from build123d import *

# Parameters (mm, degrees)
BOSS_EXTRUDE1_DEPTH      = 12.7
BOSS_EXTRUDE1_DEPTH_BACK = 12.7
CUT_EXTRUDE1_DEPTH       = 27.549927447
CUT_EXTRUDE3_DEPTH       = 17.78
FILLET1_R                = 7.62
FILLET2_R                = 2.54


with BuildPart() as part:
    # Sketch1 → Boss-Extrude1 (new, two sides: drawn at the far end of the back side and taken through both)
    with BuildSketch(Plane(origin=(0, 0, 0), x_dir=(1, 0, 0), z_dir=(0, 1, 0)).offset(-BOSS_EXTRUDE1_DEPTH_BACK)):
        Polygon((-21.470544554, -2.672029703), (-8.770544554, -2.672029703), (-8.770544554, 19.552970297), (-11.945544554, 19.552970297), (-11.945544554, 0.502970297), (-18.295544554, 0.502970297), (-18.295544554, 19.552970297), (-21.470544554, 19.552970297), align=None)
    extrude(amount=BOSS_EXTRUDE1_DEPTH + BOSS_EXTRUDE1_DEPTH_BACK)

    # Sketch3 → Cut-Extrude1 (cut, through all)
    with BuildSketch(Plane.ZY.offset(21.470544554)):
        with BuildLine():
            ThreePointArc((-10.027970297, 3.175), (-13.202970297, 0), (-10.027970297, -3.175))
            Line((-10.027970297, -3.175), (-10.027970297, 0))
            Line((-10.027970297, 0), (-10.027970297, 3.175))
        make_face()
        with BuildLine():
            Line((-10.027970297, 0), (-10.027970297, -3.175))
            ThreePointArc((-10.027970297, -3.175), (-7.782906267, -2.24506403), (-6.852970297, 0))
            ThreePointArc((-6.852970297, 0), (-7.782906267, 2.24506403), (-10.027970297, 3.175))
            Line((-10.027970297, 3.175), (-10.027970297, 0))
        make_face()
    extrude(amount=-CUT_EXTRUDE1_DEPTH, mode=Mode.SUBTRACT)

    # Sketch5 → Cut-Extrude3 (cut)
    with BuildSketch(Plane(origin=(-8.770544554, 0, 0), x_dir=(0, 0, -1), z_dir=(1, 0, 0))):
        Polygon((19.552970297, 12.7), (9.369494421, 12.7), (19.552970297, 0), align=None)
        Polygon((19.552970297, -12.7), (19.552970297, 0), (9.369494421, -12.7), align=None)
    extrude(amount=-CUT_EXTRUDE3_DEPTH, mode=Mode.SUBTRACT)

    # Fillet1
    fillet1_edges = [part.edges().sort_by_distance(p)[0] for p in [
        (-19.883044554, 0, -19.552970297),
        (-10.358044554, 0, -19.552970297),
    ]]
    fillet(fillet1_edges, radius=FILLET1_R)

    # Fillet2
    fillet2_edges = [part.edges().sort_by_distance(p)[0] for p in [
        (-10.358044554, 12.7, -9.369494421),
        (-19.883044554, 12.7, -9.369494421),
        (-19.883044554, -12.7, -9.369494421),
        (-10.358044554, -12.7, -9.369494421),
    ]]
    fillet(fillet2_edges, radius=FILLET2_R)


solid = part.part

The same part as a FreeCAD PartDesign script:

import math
import FreeCAD as App
import Part
import Sketcher
from FreeCAD import Vector
Q = App.Units.Quantity


def edges_at(feature, points):
    """Names of the edges that pass closest to the given points."""
    edges = feature.Shape.Edges
    near = lambda p: min(range(len(edges)), key=lambda i: edges[i].distToShape(Part.Vertex(*p))[0])
    return sorted({f"Edge{near(p) + 1}" for p in points})


def add_polygon(sketch, points):
    """Adds a closed chain of lines whose ends are joined by coincident constraints."""
    first, n = sketch.GeometryCount, len(points)
    for a, b in zip(points, points[1:] + points[:1]):
        sketch.addGeometry(Part.LineSegment(App.Vector(*a, 0), App.Vector(*b, 0)), False)
    for i in range(n):
        sketch.addConstraint(Sketcher.Constraint("Coincident", first + i, 2, first + (i + 1) % n, 1))

doc = App.newDocument("Part")
body = doc.addObject("PartDesign::Body", "Body")

# Sketch on XZ plane
sketch1 = body.newObject("Sketcher::SketchObject", "Sketch")
sketch1.AttachmentSupport = (doc.getObject("XZ_Plane"), [""])
sketch1.MapMode = "FlatFace"
add_polygon(sketch1, [(-21.470545, 2.67203), (-8.770545, 2.67203), (-8.770545, -19.55297), (-11.945545, -19.55297), (-11.945545, -0.50297), (-18.295545, -0.50297), (-18.295545, -19.55297), (-21.470545, -19.55297)])  # lines 0-7
sketch1.addConstraint(Sketcher.Constraint("Horizontal", 0))
sketch1.addConstraint(Sketcher.Constraint("Vertical", 1))
sketch1.addConstraint(Sketcher.Constraint("Horizontal", 2))
sketch1.addConstraint(Sketcher.Constraint("Vertical", 3))
sketch1.addConstraint(Sketcher.Constraint("Horizontal", 4))
sketch1.addConstraint(Sketcher.Constraint("Vertical", 5))
sketch1.addConstraint(Sketcher.Constraint("Horizontal", 6))
sketch1.addConstraint(Sketcher.Constraint("Vertical", 7))
sketch1.addConstraint(Sketcher.Constraint("Horizontal", 2, 2, 5, 2))
sketch1.addConstraint(Sketcher.Constraint("Equal", 2, 6))
sketch1.addConstraint(Sketcher.Constraint("DistanceX", 0, 1, 0, 2, Q("0.5 in")))
sketch1.addConstraint(Sketcher.Constraint("DistanceX", 4, 2, 4, 1, Q("0.25 in")))
sketch1.addConstraint(Sketcher.Constraint("DistanceY", 3, 1, 3, 2, Q("0.75 in")))
sketch1.addConstraint(Sketcher.Constraint("DistanceY", 1, 2, 1, 1, Q("0.875 in")))
sketch1.addConstraint(Sketcher.Constraint("DistanceY", -1, 1, 0, 2, 2.67203))
sketch1.addConstraint(Sketcher.Constraint("DistanceX", 0, 2, -1, 1, 8.770545))
pad1 = body.newObject("PartDesign::Pad", "Pad")
pad1.Profile = sketch1
pad1.Type = "TwoLengths"
pad1.Length = Q("0.5 in")
pad1.Length2 = Q("0.5 in")
pad1.Reversed = True

# Sketch on YZ plane
sketch2 = body.newObject("Sketcher::SketchObject", "Sketch001")
sketch2.AttachmentSupport = (doc.getObject("YZ_Plane"), [""])
sketch2.MapMode = "FlatFace"
sketch2.AttachmentOffset = App.Placement(Vector(0, 0, -21.470545), App.Rotation())
sketch2.addGeometry(Part.ArcOfCircle(Part.Circle(Vector(0, -10.02797, 0), Vector(0, 0, 1), 3.175), math.radians(180), math.radians(360)), False)
sketch2.addGeometry(Part.ArcOfCircle(Part.Circle(Vector(0, -10.02797, 0), Vector(0, 0, 1), 3.175), math.radians(90), math.radians(180)), False)
sketch2.addGeometry(Part.ArcOfCircle(Part.Circle(Vector(0, -10.02797, 0), Vector(0, 0, 1), 3.175), math.radians(0), math.radians(90)), False)
sketch2.addConstraint(Sketcher.Constraint("Tangent", 0, 1, 1, 2))
sketch2.addConstraint(Sketcher.Constraint("Tangent", 1, 1, 2, 2))
sketch2.addConstraint(Sketcher.Constraint("Tangent", 2, 1, 0, 2))
sketch2.addConstraint(Sketcher.Constraint("Symmetric", 0, 1, 2, 1, -2))
sketch2.addConstraint(Sketcher.Constraint("PointOnObject", 1, 1, -2))
sketch2.addConstraint(Sketcher.Constraint("Horizontal", 2, 3, 0, 1))
sketch2.addConstraint(Sketcher.Constraint("Radius", 0, Q("0.125 in")))
sketch2.addConstraint(Sketcher.Constraint("DistanceY", 0, 3, -1, 1, 10.02797))
pocket1 = body.newObject("PartDesign::Pocket", "Pocket")
pocket1.Profile = sketch2
pocket1.Type = "ThroughAll"
pocket1.Reversed = True

# Sketch on YZ plane
sketch3 = body.newObject("Sketcher::SketchObject", "Sketch002")
sketch3.AttachmentSupport = (doc.getObject("YZ_Plane"), [""])
sketch3.MapMode = "FlatFace"
sketch3.AttachmentOffset = App.Placement(Vector(0, 0, -8.770545), App.Rotation())
add_polygon(sketch3, [(12.7, -19.55297), (12.7, -9.369494), (0, -19.55297)])  # lines 0-2
add_polygon(sketch3, [(-12.7, -19.55297), (0, -19.55297), (-12.7, -9.369494)])  # lines 3-5
sketch3.addConstraint(Sketcher.Constraint("Vertical", 0))
sketch3.addConstraint(Sketcher.Constraint("Horizontal", 2))
sketch3.addConstraint(Sketcher.Constraint("Horizontal", 3))
sketch3.addConstraint(Sketcher.Constraint("Vertical", 5))
sketch3.addConstraint(Sketcher.Constraint("Coincident", 3, 2, 1, 2))
sketch3.addConstraint(Sketcher.Constraint("Symmetric", 0, 2, 4, 2, -2))
sketch3.addConstraint(Sketcher.Constraint("PointOnObject", 1, 2, -2))
sketch3.addConstraint(Sketcher.Constraint("DistanceX", 2, 1, 2, 2, Q("0.5 in")))
sketch3.addConstraint(Sketcher.Constraint("Distance", 1, 16.278611))
sketch3.addConstraint(Sketcher.Constraint("DistanceY", 1, 2, -1, 1, 19.55297))
pocket2 = body.newObject("PartDesign::Pocket", "Pocket001")
pocket2.Profile = sketch3
pocket2.Length = Q("0.7 in")
doc.recompute()

fillet = body.newObject("PartDesign::Fillet", "Fillet")
fillet.Base = (pocket2, edges_at(pocket2, [(-19.883, 0, -19.553), (-10.358, 0, -19.553)]))
fillet.Radius = Q("0.3 in")
doc.recompute()

fillet2 = body.newObject("PartDesign::Fillet", "Fillet001")
fillet2.Base = (fillet, edges_at(fillet, [
    (-10.358, 12.7, -9.369),
    (-19.883, 12.7, -9.369),
    (-19.883, -12.7, -9.369),
    (-10.358, -12.7, -9.369),
]))
fillet2.Radius = Q("0.1 in")

doc.recompute()
